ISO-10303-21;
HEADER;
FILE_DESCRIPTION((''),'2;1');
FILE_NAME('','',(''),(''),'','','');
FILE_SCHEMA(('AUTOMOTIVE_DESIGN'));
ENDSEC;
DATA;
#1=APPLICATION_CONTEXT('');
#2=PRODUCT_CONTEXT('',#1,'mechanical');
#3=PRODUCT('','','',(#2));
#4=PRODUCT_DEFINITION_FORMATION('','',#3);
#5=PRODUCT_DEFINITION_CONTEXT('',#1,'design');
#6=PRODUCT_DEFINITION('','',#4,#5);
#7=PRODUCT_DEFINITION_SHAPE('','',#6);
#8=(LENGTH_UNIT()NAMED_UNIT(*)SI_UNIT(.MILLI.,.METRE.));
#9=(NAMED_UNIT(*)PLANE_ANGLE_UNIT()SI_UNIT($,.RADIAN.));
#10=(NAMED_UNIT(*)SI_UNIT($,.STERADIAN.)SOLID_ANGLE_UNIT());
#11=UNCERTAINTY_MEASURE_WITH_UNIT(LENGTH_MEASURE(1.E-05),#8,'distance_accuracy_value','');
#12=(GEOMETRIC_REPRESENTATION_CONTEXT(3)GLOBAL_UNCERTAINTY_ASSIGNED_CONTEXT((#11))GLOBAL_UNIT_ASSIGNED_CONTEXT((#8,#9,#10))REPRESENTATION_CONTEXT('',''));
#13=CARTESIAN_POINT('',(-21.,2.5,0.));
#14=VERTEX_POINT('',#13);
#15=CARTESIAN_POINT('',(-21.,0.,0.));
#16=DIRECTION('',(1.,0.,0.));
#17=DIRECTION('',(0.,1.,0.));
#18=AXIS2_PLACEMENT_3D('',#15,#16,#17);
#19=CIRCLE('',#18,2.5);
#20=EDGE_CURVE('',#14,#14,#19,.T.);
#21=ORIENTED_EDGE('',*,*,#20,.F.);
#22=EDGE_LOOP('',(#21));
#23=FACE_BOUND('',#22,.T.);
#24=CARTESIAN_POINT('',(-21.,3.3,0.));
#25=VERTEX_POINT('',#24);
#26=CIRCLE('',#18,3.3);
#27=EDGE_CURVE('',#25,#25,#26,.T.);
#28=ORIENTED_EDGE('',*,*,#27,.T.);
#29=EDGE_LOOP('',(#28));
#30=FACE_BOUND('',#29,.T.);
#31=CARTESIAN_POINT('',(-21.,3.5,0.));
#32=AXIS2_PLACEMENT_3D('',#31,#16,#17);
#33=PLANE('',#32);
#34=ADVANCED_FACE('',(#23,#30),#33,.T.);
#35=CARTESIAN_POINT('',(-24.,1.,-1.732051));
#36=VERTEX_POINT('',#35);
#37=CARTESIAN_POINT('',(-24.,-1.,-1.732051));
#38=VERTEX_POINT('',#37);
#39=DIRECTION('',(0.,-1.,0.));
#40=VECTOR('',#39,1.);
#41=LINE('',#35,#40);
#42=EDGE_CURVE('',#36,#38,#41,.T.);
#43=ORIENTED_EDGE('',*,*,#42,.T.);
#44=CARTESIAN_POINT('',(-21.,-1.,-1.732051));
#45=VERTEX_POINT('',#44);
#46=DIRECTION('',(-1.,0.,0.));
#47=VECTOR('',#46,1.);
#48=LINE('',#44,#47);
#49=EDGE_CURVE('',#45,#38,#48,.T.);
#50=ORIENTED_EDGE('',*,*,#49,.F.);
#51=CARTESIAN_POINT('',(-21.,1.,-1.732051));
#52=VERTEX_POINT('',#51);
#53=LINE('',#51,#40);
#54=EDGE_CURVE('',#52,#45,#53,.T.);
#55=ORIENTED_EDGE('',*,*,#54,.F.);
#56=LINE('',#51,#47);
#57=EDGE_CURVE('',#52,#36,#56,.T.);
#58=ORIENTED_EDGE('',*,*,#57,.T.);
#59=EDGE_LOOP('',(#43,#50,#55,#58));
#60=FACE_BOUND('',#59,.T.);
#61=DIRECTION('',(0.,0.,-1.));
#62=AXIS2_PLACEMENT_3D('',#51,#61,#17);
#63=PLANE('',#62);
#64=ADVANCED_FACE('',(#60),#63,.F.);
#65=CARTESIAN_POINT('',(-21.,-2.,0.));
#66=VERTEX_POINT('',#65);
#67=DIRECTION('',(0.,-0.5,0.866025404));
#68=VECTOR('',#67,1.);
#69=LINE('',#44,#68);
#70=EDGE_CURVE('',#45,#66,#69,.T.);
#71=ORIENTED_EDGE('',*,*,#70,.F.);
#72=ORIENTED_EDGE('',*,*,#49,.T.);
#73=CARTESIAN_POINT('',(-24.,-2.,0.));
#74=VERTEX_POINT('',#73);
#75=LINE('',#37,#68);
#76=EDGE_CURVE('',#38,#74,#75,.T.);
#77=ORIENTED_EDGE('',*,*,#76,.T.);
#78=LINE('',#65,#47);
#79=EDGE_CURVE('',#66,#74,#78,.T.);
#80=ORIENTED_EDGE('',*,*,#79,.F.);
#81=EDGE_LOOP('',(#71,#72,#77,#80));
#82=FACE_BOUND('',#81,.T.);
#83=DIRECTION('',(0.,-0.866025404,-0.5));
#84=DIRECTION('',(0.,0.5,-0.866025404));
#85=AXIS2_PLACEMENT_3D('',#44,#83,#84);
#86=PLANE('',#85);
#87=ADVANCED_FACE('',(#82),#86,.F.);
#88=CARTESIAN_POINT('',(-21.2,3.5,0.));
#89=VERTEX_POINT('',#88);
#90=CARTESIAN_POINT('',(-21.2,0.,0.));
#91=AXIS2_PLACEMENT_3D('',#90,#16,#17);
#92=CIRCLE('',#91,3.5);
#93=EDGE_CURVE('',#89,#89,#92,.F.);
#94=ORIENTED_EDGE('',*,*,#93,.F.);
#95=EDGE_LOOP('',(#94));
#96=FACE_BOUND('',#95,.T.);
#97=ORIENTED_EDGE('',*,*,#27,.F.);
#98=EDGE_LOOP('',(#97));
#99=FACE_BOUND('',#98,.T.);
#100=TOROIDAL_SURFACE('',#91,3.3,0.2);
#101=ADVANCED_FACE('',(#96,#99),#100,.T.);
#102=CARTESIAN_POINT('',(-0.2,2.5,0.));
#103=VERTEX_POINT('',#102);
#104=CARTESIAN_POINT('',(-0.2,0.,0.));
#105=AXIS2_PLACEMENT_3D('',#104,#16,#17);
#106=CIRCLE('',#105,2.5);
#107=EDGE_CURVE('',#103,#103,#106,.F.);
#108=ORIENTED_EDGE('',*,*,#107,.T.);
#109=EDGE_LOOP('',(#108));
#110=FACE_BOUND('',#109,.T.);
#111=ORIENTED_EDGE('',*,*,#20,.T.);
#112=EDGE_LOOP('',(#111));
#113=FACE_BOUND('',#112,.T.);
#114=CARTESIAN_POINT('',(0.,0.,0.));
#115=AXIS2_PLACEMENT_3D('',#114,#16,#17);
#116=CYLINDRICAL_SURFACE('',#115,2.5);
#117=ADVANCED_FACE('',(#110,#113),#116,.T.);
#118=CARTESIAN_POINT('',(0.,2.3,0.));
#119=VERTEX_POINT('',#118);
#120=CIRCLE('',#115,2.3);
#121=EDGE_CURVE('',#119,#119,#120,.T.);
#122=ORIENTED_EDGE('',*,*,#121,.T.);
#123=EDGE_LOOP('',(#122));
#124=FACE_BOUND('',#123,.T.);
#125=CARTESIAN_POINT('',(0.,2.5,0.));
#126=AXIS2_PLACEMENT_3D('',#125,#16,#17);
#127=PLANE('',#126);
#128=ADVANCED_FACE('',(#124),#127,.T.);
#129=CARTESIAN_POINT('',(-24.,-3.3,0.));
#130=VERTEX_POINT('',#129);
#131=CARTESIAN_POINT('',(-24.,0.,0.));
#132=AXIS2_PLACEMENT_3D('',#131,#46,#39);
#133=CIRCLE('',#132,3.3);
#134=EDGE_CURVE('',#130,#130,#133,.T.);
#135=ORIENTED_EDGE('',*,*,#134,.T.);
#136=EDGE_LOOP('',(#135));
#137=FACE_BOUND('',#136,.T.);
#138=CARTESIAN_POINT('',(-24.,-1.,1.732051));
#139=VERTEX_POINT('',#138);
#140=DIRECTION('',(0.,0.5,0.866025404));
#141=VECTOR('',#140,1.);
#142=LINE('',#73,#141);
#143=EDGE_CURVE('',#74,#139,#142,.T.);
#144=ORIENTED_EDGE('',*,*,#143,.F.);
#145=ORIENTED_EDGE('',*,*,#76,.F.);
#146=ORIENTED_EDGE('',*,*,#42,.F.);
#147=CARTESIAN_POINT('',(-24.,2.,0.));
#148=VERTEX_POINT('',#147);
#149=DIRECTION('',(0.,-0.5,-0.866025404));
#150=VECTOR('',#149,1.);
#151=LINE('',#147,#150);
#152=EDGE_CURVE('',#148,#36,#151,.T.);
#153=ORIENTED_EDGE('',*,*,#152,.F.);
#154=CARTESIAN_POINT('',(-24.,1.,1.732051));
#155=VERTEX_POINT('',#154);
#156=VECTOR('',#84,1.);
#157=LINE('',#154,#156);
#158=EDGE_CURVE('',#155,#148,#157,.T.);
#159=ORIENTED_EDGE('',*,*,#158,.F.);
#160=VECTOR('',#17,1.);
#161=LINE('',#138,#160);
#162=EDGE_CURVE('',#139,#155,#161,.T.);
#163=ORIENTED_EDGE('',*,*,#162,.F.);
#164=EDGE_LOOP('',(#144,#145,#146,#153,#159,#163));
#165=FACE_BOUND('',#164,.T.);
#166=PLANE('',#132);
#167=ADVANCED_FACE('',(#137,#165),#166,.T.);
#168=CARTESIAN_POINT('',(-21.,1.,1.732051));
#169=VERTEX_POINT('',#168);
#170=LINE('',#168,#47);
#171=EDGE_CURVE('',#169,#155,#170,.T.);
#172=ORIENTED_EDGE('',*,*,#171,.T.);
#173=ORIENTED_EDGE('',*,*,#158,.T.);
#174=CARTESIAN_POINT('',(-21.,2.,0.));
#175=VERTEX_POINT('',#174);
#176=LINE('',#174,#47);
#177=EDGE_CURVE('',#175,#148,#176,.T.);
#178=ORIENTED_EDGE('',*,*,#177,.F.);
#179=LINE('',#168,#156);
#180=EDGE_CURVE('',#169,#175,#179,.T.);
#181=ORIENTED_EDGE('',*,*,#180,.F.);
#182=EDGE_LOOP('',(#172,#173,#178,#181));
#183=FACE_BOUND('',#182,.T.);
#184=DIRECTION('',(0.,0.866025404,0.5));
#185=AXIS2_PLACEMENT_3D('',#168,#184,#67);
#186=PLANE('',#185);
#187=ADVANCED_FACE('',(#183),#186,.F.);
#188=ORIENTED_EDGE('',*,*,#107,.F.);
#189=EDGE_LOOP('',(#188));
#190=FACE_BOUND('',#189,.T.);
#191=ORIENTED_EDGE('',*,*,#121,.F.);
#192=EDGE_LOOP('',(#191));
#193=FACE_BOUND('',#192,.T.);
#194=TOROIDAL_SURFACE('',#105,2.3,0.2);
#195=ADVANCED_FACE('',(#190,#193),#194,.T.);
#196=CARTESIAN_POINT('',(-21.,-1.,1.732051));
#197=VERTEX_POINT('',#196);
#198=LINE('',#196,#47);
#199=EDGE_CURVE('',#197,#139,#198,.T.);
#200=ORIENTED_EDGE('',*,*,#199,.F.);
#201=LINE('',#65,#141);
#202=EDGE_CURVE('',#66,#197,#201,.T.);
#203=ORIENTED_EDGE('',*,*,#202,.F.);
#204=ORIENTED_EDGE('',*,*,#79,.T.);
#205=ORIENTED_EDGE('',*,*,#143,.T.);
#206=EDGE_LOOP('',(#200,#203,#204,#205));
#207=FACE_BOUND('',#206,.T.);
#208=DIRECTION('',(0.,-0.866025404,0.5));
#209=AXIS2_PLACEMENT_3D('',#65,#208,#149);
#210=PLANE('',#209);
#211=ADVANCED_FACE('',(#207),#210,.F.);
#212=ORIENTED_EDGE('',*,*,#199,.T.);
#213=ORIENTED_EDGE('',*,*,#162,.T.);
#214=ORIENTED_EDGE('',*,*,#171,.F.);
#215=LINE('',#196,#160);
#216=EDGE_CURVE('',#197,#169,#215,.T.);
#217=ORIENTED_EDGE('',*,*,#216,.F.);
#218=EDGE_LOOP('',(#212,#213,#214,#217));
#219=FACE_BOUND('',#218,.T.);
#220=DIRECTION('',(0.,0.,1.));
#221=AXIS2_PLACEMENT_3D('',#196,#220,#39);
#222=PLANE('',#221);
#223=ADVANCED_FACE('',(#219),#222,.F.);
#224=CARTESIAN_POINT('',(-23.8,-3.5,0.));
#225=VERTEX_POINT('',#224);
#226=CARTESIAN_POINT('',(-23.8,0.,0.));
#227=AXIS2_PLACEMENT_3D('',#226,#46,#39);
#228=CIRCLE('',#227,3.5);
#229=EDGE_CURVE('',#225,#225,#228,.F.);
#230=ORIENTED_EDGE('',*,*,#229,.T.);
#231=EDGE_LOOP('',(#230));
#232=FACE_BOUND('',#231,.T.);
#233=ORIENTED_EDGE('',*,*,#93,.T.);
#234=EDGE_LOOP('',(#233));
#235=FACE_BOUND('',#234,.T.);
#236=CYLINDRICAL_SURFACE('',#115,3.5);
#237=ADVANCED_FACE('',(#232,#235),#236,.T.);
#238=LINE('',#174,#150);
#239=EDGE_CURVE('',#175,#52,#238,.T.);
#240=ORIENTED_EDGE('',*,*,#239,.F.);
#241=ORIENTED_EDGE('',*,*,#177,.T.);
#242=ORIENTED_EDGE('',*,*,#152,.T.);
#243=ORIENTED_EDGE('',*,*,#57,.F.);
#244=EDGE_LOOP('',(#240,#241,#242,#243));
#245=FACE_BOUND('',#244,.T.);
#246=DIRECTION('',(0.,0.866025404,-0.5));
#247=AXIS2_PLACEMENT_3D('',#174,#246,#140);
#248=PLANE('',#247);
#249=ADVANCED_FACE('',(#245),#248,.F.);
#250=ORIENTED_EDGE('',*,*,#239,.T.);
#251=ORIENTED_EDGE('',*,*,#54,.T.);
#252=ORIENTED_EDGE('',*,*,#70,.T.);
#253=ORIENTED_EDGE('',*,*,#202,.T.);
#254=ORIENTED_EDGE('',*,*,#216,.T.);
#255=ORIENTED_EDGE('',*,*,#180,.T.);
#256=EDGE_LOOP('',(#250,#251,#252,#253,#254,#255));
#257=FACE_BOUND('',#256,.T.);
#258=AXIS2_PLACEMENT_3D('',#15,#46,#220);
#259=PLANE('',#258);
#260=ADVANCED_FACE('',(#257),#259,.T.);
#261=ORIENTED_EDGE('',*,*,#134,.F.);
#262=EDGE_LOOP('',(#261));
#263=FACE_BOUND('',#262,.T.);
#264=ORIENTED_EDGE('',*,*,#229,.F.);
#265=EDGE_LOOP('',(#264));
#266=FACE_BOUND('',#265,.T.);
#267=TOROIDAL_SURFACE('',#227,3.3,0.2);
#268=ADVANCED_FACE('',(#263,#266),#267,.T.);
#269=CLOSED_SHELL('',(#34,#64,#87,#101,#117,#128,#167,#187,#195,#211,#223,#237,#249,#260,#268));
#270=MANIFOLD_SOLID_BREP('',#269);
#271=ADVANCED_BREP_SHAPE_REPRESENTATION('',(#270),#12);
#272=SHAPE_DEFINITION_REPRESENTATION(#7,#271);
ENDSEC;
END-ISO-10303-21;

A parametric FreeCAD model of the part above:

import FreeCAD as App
import Part
import Sketcher
from FreeCAD import Vector
Q = App.Units.Quantity


def edges_at(feature, points):
    """Names of the edges that pass closest to the given points."""
    edges = feature.Shape.Edges
    near = lambda p: min(range(len(edges)), key=lambda i: edges[i].distToShape(Part.Vertex(*p))[0])
    return sorted({f"Edge{near(p) + 1}" for p in points})

doc = App.newDocument("Part")
body = doc.addObject("PartDesign::Body", "Body")

# Sketch on XY plane
sketch1 = body.newObject("Sketcher::SketchObject", "Sketch")
sketch1.AttachmentSupport = (doc.getObject("XY_Plane"), [""])
sketch1.MapMode = "FlatFace"
sketch1.addGeometry(Part.LineSegment(Vector(-24, 0, 0), Vector(0, 0, 0)), False)
sketch1.addGeometry(Part.LineSegment(Vector(0, 0, 0), Vector(0, 2.5, 0)), False)
sketch1.addGeometry(Part.LineSegment(Vector(0, 2.5, 0), Vector(-21, 2.5, 0)), False)
sketch1.addGeometry(Part.LineSegment(Vector(-21, 2.5, 0), Vector(-21, 3.5, 0)), False)
sketch1.addGeometry(Part.LineSegment(Vector(-21, 3.5, 0), Vector(-24, 3.5, 0)), False)
sketch1.addGeometry(Part.LineSegment(Vector(-24, 3.5, 0), Vector(-24, 0, 0)), False)
sketch1.addConstraint(Sketcher.Constraint("Coincident", 0, 2, 1, 1))
sketch1.addConstraint(Sketcher.Constraint("Coincident", 1, 2, 2, 1))
sketch1.addConstraint(Sketcher.Constraint("Coincident", 2, 2, 3, 1))
sketch1.addConstraint(Sketcher.Constraint("Coincident", 3, 2, 4, 1))
sketch1.addConstraint(Sketcher.Constraint("Coincident", 4, 2, 5, 1))
sketch1.addConstraint(Sketcher.Constraint("Coincident", 5, 2, 0, 1))
sketch1.addConstraint(Sketcher.Constraint("Horizontal", 0))
sketch1.addConstraint(Sketcher.Constraint("Vertical", 1))
sketch1.addConstraint(Sketcher.Constraint("Horizontal", 2))
sketch1.addConstraint(Sketcher.Constraint("Vertical", 3))
sketch1.addConstraint(Sketcher.Constraint("Horizontal", 4))
sketch1.addConstraint(Sketcher.Constraint("Vertical", 5))
sketch1.addConstraint(Sketcher.Constraint("Coincident", 0, 2, -1, 1))
sketch1.addConstraint(Sketcher.Constraint("DistanceX", 0, 1, 0, 2, Q("24 mm")))
sketch1.addConstraint(Sketcher.Constraint("DistanceX", 2, 2, 2, 1, Q("21 mm")))
sketch1.addConstraint(Sketcher.Constraint("DistanceY", 3, 1, 3, 2, Q("1 mm")))
sketch1.addConstraint(Sketcher.Constraint("DistanceY", 1, 1, 1, 2, Q("2.5 mm")))
revolution = body.newObject("PartDesign::Revolution", "Revolution")
revolution.Profile = sketch1
revolution.ReferenceAxis = (sketch1, ["H_Axis"])
revolution.Angle = 360
doc.recompute()

fillet = body.newObject("PartDesign::Fillet", "Fillet")
fillet.Base = (revolution, edges_at(revolution, [(0, -2.5, 0), (-21, -3.5, 0), (-24, -3.5, 0)]))
fillet.Radius = 0.2

# Sketch on YZ plane
sketch2 = body.newObject("Sketcher::SketchObject", "Sketch001")
sketch2.AttachmentSupport = (doc.getObject("YZ_Plane"), [""])
sketch2.MapMode = "FlatFace"
sketch2.AttachmentOffset = App.Placement(Vector(0, 0, -24), App.Rotation())
sketch2.addGeometry(Part.LineSegment(Vector(2, 0, 0), Vector(1, -1.7, 0)), False)
sketch2.addGeometry(Part.LineSegment(Vector(1, -1.7, 0), Vector(-1, -1.7, 0)), False)
sketch2.addGeometry(Part.LineSegment(Vector(-1, -1.7, 0), Vector(-2, 0, 0)), False)
sketch2.addGeometry(Part.LineSegment(Vector(-2, 0, 0), Vector(-1, 1.7, 0)), False)
sketch2.addGeometry(Part.LineSegment(Vector(-1, 1.7, 0), Vector(1, 1.7, 0)), False)
sketch2.addGeometry(Part.LineSegment(Vector(1, 1.7, 0), Vector(2, 0, 0)), False)
sketch2.addConstraint(Sketcher.Constraint("Coincident", 0, 2, 1, 1))
sketch2.addConstraint(Sketcher.Constraint("Coincident", 1, 2, 2, 1))
sketch2.addConstraint(Sketcher.Constraint("Coincident", 2, 2, 3, 1))
sketch2.addConstraint(Sketcher.Constraint("Coincident", 3, 2, 4, 1))
sketch2.addConstraint(Sketcher.Constraint("Coincident", 4, 2, 5, 1))
sketch2.addConstraint(Sketcher.Constraint("Coincident", 5, 2, 0, 1))
sketch2.addConstraint(Sketcher.Constraint("Horizontal", 1))
sketch2.addConstraint(Sketcher.Constraint("Horizontal", 4))
sketch2.addConstraint(Sketcher.Constraint("Symmetric", 0, 2, 3, 2, -1, 1))
sketch2.addConstraint(Sketcher.Constraint("Symmetric", 2, 2, 5, 2, -1, 1))
sketch2.addConstraint(Sketcher.Constraint("PointOnObject", 2, 2, -1))
sketch2.addConstraint(Sketcher.Constraint("Parallel", 2, 5))
sketch2.addConstraint(Sketcher.Constraint("Vertical", 1, 2, 3, 2))
sketch2.addConstraint(Sketcher.Constraint("DistanceX", 1, 2, 1, 1, Q("2 mm")))
sketch2.addConstraint(Sketcher.Constraint("Angle", 0, Q("-120 deg")))
sketch2.addConstraint(Sketcher.Constraint("Distance", 0, Q("2 mm")))
pocket1 = body.newObject("PartDesign::Pocket", "Pocket")
pocket1.Profile = sketch2
pocket1.Length = 3
pocket1.Reversed = True

doc.recompute()
